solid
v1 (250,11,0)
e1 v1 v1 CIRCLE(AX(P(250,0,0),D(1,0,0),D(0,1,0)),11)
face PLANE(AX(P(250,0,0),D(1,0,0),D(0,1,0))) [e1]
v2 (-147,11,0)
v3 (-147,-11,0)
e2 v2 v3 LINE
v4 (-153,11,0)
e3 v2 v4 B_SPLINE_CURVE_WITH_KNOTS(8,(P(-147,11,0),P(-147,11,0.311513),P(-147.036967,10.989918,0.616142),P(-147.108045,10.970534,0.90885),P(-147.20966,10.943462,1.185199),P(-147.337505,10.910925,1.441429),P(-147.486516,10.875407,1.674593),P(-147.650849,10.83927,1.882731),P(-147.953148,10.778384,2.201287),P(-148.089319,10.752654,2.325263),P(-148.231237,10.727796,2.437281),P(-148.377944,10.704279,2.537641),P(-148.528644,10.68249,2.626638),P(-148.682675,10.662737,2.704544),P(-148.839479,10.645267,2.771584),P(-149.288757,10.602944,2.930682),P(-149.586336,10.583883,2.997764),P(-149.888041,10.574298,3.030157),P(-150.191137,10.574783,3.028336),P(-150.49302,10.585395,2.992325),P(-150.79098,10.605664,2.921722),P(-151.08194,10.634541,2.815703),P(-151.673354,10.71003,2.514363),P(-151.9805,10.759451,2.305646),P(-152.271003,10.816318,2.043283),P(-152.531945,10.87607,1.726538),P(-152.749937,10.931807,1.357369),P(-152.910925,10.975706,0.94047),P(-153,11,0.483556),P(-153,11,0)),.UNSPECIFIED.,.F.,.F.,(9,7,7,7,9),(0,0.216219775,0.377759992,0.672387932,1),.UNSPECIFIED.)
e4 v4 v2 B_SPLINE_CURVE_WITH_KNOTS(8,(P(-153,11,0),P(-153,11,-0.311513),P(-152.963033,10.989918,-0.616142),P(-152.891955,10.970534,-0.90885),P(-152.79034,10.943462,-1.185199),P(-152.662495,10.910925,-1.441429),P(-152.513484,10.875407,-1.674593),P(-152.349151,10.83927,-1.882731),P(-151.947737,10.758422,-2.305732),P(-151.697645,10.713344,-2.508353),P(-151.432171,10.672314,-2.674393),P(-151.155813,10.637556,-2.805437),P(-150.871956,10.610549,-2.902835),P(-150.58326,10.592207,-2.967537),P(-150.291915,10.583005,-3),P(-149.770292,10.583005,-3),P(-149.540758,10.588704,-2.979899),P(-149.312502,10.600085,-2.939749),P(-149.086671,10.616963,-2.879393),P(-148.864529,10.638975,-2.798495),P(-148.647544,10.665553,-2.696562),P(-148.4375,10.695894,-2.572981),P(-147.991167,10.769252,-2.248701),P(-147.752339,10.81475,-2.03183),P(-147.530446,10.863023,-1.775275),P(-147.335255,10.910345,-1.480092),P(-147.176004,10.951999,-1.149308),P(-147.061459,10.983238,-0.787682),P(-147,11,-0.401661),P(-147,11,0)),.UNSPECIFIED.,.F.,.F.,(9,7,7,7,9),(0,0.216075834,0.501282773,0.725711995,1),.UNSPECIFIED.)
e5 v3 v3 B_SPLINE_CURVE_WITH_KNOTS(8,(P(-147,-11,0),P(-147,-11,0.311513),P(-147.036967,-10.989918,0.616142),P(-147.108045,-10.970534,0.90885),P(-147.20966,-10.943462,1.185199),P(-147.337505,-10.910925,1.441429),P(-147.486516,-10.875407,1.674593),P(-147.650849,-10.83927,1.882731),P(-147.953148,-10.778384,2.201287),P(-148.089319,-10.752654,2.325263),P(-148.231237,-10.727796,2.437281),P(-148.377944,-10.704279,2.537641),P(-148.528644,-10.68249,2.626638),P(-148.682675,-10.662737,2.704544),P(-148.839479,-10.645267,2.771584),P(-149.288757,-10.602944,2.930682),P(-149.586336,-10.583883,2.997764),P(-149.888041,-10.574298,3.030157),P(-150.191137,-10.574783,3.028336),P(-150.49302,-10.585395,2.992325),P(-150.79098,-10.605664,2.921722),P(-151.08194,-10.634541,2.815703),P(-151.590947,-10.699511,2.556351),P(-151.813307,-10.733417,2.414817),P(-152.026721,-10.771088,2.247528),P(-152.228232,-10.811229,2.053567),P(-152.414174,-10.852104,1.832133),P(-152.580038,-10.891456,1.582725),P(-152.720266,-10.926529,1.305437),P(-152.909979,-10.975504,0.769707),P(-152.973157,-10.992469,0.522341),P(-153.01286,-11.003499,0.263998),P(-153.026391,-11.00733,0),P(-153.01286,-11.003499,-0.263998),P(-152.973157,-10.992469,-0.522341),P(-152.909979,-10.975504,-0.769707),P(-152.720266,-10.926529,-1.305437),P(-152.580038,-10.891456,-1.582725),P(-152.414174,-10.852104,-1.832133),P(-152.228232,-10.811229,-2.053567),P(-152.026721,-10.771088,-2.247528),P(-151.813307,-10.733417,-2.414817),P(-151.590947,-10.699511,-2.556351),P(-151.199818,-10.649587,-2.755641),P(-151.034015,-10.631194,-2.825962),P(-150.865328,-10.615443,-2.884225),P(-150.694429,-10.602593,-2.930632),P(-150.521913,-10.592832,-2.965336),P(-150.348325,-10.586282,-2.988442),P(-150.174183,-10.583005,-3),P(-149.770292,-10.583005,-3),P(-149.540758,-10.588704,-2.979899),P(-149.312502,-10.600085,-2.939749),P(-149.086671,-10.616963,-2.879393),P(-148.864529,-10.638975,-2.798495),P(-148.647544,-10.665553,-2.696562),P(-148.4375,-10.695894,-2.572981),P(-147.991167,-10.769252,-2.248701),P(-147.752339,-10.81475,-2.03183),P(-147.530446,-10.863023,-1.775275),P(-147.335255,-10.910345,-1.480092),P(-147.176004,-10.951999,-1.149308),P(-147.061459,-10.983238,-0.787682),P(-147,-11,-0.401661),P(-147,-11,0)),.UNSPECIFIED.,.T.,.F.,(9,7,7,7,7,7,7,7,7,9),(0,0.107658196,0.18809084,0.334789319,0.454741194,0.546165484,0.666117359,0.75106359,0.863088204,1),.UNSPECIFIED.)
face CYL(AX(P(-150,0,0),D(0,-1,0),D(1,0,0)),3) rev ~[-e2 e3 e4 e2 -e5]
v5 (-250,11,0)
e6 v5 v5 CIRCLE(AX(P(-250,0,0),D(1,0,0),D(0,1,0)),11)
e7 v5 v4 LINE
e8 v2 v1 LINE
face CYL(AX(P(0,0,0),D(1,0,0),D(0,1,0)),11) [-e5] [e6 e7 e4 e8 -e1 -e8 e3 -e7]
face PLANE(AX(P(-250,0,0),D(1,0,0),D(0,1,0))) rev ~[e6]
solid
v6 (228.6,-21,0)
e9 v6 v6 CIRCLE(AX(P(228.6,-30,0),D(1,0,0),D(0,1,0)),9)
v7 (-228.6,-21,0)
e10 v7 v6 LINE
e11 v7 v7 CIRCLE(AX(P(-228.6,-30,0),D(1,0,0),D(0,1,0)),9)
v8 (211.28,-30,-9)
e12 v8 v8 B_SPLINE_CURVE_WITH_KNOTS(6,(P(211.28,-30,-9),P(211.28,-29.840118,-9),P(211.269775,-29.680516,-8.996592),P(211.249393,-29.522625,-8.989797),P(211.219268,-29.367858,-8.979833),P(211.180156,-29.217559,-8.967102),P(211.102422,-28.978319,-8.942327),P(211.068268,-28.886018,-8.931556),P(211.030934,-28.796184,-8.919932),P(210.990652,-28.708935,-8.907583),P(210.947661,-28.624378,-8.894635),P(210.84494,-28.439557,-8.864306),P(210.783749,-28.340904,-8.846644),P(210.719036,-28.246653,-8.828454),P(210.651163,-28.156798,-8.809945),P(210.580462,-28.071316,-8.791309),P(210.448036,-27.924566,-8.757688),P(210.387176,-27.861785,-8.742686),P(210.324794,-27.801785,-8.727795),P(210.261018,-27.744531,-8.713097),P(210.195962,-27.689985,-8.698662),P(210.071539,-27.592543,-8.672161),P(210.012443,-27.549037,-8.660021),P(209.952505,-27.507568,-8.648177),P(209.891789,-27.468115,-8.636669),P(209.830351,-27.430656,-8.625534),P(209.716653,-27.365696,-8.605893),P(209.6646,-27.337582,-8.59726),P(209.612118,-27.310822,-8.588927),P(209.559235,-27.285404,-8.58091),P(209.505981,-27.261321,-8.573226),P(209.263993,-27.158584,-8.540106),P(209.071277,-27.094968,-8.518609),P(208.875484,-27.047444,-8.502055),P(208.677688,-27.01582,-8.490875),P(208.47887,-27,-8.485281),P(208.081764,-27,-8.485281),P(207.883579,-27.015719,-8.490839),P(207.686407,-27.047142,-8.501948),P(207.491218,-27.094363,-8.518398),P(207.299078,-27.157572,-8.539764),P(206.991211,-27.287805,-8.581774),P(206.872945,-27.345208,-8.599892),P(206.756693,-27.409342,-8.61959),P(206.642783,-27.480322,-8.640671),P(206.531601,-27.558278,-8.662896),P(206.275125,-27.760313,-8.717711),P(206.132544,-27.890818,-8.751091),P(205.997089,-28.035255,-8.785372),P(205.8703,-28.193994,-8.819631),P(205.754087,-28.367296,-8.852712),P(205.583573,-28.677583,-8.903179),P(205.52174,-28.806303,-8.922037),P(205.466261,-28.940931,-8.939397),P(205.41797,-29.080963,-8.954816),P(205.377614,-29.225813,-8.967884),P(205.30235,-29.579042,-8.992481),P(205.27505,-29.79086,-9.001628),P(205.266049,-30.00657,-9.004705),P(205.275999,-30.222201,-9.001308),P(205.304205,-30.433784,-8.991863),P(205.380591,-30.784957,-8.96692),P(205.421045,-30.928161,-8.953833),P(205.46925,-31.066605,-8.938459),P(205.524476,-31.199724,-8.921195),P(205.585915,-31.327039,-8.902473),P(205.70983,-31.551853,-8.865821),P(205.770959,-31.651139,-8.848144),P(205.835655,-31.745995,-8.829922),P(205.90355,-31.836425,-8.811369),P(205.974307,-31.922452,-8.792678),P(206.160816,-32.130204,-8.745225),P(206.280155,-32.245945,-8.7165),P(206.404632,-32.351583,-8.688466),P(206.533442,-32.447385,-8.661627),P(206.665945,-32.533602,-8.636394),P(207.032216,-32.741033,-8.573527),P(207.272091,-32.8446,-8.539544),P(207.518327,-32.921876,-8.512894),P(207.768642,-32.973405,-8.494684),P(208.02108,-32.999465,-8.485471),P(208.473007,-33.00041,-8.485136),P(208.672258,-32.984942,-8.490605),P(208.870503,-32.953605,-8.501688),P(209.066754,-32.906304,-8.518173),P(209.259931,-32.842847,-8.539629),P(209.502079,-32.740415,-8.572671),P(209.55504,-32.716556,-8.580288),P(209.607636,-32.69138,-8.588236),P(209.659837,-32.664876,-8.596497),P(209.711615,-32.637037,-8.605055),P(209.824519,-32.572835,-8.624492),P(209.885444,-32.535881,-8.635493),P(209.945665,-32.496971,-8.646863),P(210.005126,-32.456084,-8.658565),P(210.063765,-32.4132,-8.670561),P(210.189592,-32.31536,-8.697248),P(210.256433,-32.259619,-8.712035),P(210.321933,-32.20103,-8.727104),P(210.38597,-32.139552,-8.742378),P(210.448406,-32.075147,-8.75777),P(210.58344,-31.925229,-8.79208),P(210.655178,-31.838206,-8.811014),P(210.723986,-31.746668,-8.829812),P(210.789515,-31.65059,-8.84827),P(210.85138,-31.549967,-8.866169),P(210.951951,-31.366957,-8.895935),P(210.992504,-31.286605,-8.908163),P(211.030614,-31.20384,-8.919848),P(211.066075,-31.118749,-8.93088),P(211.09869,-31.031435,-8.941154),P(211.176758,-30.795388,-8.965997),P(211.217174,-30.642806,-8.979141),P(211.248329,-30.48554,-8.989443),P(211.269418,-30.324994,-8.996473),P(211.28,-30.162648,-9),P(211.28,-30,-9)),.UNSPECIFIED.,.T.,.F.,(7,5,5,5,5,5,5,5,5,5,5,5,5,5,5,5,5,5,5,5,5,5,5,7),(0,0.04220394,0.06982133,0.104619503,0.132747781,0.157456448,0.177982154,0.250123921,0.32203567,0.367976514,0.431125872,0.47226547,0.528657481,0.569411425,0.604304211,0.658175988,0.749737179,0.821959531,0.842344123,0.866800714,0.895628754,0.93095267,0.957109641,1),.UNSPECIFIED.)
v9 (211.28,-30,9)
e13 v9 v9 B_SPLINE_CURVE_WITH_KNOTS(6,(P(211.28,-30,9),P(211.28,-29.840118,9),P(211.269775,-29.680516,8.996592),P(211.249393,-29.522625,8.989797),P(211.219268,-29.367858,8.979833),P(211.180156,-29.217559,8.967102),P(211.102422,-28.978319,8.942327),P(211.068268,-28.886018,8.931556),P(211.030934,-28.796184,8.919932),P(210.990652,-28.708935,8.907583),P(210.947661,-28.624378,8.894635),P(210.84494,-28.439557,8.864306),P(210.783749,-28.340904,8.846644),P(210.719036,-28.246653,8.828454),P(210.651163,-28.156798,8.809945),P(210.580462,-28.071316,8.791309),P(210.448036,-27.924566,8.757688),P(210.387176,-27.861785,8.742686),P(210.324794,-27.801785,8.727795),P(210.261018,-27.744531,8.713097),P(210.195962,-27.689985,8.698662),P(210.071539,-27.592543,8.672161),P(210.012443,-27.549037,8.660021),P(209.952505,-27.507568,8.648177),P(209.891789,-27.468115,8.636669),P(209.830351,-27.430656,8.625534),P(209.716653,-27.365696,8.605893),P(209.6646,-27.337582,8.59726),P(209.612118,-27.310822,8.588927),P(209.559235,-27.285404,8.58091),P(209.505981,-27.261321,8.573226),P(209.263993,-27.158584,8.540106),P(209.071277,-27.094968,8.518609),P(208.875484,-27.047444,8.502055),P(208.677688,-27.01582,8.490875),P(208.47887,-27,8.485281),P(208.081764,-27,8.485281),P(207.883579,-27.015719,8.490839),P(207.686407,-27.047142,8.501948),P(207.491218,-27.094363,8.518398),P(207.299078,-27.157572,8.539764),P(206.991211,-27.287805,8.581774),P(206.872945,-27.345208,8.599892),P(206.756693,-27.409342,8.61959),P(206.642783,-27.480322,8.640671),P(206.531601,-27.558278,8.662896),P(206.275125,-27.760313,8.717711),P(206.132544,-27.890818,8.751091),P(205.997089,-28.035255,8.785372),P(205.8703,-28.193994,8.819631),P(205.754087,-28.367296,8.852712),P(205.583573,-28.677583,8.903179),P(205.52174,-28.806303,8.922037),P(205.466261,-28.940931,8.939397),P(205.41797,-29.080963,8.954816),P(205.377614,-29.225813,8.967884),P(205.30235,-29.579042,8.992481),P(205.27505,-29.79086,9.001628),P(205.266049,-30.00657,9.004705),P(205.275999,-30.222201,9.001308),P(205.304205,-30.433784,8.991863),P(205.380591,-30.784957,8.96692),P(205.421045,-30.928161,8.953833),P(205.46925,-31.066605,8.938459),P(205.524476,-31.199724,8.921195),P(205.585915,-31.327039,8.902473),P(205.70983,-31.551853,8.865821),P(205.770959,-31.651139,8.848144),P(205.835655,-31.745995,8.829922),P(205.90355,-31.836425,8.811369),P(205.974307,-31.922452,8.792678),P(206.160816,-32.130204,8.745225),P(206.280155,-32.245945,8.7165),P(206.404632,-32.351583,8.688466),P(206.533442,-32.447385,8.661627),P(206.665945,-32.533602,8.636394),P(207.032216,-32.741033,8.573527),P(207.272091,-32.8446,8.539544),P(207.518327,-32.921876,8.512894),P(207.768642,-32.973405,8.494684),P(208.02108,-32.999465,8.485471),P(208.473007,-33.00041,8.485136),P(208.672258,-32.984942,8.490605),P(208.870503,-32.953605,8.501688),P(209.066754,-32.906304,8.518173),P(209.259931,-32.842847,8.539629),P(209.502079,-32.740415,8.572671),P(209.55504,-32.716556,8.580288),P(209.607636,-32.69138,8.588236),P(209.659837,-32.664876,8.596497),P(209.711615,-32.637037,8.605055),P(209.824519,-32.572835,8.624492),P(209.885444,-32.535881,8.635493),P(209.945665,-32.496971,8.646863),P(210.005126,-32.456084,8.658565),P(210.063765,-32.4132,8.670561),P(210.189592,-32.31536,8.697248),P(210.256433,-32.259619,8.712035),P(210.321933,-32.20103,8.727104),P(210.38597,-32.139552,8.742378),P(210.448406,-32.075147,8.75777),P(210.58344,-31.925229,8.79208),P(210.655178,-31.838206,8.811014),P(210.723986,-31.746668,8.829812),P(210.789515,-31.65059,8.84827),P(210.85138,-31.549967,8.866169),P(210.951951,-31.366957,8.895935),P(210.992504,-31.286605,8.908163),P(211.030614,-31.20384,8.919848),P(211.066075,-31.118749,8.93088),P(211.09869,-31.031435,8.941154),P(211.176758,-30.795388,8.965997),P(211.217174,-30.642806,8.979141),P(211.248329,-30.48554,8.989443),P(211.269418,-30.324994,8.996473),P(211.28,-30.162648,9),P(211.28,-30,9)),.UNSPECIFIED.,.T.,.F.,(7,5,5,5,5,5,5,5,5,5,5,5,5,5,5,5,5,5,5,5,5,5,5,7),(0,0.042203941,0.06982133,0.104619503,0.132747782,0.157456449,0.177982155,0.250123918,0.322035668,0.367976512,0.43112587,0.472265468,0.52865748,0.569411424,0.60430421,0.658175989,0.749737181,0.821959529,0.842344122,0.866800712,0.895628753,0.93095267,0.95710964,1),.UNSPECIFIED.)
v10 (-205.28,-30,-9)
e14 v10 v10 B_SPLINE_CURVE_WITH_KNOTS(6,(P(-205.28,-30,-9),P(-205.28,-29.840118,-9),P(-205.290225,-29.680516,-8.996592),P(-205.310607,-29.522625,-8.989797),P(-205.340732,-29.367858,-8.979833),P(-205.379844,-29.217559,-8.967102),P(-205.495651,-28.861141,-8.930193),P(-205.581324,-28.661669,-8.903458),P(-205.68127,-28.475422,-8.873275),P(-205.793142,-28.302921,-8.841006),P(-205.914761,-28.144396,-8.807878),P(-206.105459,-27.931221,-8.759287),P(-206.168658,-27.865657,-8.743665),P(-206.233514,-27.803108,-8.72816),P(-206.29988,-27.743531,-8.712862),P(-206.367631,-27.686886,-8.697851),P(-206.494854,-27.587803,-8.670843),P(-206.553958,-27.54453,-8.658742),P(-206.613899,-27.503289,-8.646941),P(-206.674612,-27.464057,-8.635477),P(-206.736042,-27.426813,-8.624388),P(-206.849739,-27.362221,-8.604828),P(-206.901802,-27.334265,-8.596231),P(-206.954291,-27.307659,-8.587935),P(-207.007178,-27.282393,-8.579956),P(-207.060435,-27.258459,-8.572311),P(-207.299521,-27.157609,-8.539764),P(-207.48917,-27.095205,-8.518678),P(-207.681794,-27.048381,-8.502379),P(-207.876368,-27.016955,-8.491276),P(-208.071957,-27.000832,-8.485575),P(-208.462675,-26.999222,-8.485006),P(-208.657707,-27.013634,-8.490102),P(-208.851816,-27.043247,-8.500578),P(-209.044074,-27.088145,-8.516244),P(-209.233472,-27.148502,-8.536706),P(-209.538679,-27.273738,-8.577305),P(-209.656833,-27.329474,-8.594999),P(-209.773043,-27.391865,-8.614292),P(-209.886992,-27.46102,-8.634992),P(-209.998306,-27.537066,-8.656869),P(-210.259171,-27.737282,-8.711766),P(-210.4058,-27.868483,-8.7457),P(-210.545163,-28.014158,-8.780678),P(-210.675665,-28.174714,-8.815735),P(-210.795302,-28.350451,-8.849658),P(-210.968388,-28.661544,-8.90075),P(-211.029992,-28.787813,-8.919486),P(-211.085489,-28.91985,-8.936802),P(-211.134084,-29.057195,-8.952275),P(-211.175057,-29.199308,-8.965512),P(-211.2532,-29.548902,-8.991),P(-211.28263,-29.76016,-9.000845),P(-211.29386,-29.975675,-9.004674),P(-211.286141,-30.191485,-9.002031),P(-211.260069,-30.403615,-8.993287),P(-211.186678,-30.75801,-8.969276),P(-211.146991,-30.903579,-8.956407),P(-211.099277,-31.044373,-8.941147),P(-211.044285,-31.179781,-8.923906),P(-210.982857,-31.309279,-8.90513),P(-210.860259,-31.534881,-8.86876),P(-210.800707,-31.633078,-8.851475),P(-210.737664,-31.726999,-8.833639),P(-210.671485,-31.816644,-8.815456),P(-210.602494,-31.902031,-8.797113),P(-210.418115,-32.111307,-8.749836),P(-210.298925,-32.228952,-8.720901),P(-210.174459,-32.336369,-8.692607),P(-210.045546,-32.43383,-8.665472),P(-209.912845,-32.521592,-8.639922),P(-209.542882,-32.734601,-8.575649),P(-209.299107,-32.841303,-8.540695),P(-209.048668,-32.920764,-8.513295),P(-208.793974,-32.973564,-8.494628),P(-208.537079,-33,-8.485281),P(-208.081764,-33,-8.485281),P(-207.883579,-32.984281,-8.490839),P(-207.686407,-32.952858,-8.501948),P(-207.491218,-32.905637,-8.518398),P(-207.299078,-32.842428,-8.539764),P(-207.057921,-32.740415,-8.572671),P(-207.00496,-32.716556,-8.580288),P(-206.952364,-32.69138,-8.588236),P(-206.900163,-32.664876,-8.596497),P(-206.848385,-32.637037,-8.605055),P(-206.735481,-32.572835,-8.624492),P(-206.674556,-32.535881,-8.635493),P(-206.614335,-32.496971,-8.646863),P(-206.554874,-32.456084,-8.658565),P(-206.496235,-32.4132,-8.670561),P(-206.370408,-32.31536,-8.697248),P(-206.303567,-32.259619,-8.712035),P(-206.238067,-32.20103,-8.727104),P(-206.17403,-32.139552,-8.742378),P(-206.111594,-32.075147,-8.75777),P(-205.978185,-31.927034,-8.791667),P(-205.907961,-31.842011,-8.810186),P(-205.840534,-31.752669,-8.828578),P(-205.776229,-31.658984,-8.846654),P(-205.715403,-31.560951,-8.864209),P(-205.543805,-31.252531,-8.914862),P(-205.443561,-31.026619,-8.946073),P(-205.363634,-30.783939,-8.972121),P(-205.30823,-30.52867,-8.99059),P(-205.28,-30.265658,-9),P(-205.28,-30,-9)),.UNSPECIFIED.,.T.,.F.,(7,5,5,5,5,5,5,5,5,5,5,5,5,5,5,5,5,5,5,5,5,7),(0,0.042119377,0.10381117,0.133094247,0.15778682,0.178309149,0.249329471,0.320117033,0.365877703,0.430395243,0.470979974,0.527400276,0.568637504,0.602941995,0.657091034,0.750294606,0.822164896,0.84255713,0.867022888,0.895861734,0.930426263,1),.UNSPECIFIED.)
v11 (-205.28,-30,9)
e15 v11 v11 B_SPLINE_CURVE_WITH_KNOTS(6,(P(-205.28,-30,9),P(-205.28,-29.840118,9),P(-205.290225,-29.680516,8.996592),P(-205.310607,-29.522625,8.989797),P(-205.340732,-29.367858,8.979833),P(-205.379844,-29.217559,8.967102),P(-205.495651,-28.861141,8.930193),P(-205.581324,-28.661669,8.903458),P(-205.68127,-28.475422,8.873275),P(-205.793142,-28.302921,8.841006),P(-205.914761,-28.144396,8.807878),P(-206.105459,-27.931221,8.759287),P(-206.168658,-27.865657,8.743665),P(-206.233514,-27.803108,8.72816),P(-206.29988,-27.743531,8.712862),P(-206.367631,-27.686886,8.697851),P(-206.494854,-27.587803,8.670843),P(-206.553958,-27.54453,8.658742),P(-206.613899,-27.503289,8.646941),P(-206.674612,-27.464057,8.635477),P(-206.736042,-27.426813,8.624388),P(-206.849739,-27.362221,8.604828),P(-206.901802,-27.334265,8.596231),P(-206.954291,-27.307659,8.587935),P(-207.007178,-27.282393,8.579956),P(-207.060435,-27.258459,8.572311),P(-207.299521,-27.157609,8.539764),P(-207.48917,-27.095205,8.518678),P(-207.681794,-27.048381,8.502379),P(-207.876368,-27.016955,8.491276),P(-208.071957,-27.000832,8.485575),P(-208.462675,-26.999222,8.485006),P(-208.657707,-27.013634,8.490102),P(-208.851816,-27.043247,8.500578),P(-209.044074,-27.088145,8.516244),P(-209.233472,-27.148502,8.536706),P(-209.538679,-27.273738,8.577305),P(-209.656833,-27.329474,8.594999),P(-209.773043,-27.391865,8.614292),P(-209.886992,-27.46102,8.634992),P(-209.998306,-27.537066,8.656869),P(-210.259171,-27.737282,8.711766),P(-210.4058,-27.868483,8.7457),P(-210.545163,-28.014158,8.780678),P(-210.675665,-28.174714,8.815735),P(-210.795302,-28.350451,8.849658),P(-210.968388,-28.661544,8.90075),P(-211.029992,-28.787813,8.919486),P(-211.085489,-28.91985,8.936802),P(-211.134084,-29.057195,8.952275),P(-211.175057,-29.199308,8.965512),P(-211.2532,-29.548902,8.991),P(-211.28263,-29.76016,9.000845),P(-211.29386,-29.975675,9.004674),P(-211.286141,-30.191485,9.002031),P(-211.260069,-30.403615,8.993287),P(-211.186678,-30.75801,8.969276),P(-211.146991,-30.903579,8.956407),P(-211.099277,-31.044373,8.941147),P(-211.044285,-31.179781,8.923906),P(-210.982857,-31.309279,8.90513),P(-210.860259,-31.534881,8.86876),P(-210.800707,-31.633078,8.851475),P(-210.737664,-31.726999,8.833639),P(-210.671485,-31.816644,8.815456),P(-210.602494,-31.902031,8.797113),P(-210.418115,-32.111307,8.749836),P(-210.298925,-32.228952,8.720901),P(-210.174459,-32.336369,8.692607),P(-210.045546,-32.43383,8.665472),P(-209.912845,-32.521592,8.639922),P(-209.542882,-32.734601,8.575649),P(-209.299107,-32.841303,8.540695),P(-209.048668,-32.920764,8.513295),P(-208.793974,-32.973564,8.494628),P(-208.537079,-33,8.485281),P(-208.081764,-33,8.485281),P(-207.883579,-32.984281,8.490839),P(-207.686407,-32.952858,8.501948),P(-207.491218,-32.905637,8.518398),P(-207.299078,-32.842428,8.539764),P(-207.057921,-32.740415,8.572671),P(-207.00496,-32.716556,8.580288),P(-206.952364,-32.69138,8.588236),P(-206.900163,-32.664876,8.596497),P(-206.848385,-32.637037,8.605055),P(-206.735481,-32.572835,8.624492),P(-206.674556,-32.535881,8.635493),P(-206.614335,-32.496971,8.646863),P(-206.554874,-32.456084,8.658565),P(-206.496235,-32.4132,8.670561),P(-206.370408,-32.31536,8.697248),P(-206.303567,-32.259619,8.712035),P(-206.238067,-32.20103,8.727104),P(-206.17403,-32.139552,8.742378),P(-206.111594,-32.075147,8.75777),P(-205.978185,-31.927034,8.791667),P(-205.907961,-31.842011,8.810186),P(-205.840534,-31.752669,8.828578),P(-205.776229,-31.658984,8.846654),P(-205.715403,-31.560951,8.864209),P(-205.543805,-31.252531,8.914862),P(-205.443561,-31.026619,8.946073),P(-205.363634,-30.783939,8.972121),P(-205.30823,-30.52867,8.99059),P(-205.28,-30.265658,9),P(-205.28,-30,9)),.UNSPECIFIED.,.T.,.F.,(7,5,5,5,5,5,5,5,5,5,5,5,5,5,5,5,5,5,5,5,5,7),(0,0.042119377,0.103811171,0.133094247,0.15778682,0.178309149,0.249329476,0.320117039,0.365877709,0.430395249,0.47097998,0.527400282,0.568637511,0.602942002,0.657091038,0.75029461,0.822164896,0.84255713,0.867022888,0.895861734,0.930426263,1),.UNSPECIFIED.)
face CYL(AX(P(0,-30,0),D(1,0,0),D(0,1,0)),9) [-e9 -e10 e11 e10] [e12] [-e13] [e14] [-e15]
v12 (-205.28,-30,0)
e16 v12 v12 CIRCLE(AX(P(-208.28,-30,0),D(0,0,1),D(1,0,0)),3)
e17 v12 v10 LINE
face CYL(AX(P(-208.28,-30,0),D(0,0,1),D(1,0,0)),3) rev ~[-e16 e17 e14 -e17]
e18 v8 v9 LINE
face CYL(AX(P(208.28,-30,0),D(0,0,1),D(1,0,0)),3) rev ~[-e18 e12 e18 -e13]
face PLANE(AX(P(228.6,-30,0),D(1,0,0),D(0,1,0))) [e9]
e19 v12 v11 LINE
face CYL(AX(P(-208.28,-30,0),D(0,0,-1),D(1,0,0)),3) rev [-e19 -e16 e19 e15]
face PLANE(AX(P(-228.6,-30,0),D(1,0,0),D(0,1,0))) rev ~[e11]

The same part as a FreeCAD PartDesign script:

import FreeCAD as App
import Part
import Sketcher

V = App.Vector
Q = App.Units.Quantity

doc = App.newDocument("Part")
params = doc.addObject("Spreadsheet::Sheet", "Params")
for row, (alias, value) in enumerate([
    ("sketch1_diameter", "22 mm"),
    ("pad1_length", "500 mm"),
    ("sketch2_diameter", "6 mm"),
    ("pocket1_length", "25.4 mm"),
    ("sketch3_diameter", "18 mm"),
    ("pad2_length", "457.2 mm"),
    ("sketch4_diameter", "6 mm"),
    ("pocket2_length", "25.4 mm"),
], start=1):
    params.set(f"A{row}", alias)
    params.set(f"B{row}", "=" + value)
    params.setAlias(f"B{row}", alias)

body = doc.addObject("PartDesign::Body", "Body")

sketch1 = body.newObject("Sketcher::SketchObject", "Sketch")
sketch1.AttachmentSupport = (doc.getObject("YZ_Plane"), [""])
sketch1.MapMode = "FlatFace"
sketch1.addGeometry(Part.Circle(V(0, 0, 0), V(0, 0, 1), 11), False)
sketch1.addConstraint([
    Sketcher.Constraint("Coincident", 0, 3, -1, 1),
    Sketcher.Constraint("Diameter", 0, Q("22 mm")),
])
sketch1.setExpression("Constraints[1]", "Params.sketch1_diameter")
pad1 = body.newObject("PartDesign::Pad", "Pad")
pad1.Profile = sketch1
pad1.setExpression("Length", "Params.pad1_length")
pad1.Midplane = True

sketch2 = body.newObject("Sketcher::SketchObject", "Sketch001")
sketch2.AttachmentSupport = (doc.getObject("XZ_Plane"), [""])
sketch2.MapMode = "FlatFace"
sketch2.addGeometry(Part.Circle(V(-150, 0, 0), V(0, 0, 1), 3), False)
sketch2.addConstraint([
    Sketcher.Constraint("PointOnObject", 0, 3, -1),
    Sketcher.Constraint("Diameter", 0, Q("6 mm")),
    Sketcher.Constraint("DistanceX", 0, 3, -1, 1, Q("150 mm")),
])
sketch2.setExpression("Constraints[1]", "Params.sketch2_diameter")
pocket1 = body.newObject("PartDesign::Pocket", "Pocket")
pocket1.Profile = sketch2
pocket1.setExpression("Length", "Params.pocket1_length")
pocket1.Midplane = True
body2 = doc.addObject("PartDesign::Body", "Body001")

sketch3 = body2.newObject("Sketcher::SketchObject", "Sketch002")
sketch3.AttachmentSupport = (doc.getObject("YZ_Plane001"), [""])
sketch3.MapMode = "FlatFace"
sketch3.addGeometry(Part.Circle(V(-30, 0, 0), V(0, 0, 1), 9), False)
sketch3.addConstraint([
    Sketcher.Constraint("PointOnObject", 0, 3, -1),
    Sketcher.Constraint("Diameter", 0, Q("18 mm")),
    Sketcher.Constraint("DistanceX", 0, 3, -1, 1, Q("30 mm")),
])
sketch3.setExpression("Constraints[1]", "Params.sketch3_diameter")
pad2 = body2.newObject("PartDesign::Pad", "Pad001")
pad2.Profile = sketch3
pad2.setExpression("Length", "Params.pad2_length")
pad2.Midplane = True

sketch4 = body2.newObject("Sketcher::SketchObject", "Sketch003")
sketch4.AttachmentSupport = (doc.getObject("XY_Plane001"), [""])
sketch4.MapMode = "FlatFace"
sketch4.addGeometry([
    Part.Circle(V(-208.3, -30, 0), V(0, 0, 1), 3),
    Part.Circle(V(208.3, -30, 0), V(0, 0, 1), 3),
], False)
sketch4.addConstraint([
    Sketcher.Constraint("Equal", 0, 1),
    Sketcher.Constraint("Symmetric", 0, 3, 1, 3, -2),
    Sketcher.Constraint("Diameter", 0, Q("6 mm")),
    Sketcher.Constraint("DistanceY", 0, 3, -1, 1, Q("30 mm")),
    Sketcher.Constraint("DistanceX", 0, 3, -1, 1, Q("208.28 mm")),
])
sketch4.setExpression("Constraints[2]", "Params.sketch4_diameter")
pocket2 = body2.newObject("PartDesign::Pocket", "Pocket001")
pocket2.Profile = sketch4
pocket2.setExpression("Length", "Params.pocket2_length")
pocket2.Midplane = True

doc.recompute()
